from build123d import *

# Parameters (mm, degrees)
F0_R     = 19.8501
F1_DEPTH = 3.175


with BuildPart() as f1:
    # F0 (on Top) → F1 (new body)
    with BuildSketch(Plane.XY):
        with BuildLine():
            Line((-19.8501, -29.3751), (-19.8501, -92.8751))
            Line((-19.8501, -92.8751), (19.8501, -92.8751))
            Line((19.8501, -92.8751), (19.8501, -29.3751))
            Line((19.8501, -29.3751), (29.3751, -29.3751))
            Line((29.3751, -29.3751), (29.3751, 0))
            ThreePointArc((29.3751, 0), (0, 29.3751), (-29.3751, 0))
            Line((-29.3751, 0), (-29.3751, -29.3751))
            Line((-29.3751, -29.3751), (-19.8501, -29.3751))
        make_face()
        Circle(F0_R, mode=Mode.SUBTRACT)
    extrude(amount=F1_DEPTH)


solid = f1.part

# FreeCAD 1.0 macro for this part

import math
import FreeCAD as App
import Part
import Sketcher
Q = App.Units.Quantity

doc = App.newDocument("Part")
body = doc.addObject("PartDesign::Body", "Body")

sketch1 = body.newObject("Sketcher::SketchObject", "Sketch")
sketch1.AttachmentSupport = (doc.getObject("XY_Plane"), [""])
sketch1.MapMode = "FlatFace"
sketch1.addGeometry(Part.LineSegment(App.Vector(-20, -29, 0), App.Vector(-20, -93, 0)), False)
sketch1.addGeometry(Part.LineSegment(App.Vector(-20, -93, 0), App.Vector(20, -93, 0)), False)
sketch1.addGeometry(Part.LineSegment(App.Vector(20, -93, 0), App.Vector(20, -29, 0)), False)
sketch1.addGeometry(Part.LineSegment(App.Vector(20, -29, 0), App.Vector(29, -29, 0)), False)
sketch1.addGeometry(Part.LineSegment(App.Vector(29, -29, 0), App.Vector(29, 0, 0)), False)
sketch1.addGeometry(Part.ArcOfCircle(Part.Circle(App.Vector(0, 0, 0), App.Vector(0, 0, 1), 29), math.radians(0), math.radians(180)), False)
sketch1.addGeometry(Part.LineSegment(App.Vector(-29, 0, 0), App.Vector(-29, -29, 0)), False)
sketch1.addGeometry(Part.LineSegment(App.Vector(-29, -29, 0), App.Vector(-20, -29, 0)), False)
sketch1.addGeometry(Part.Circle(App.Vector(0, 0, 0), App.Vector(0, 0, 1), 20), False)
sketch1.addConstraint(Sketcher.Constraint("Coincident", 0, 2, 1, 1))
sketch1.addConstraint(Sketcher.Constraint("Coincident", 1, 2, 2, 1))
sketch1.addConstraint(Sketcher.Constraint("Coincident", 2, 2, 3, 1))
sketch1.addConstraint(Sketcher.Constraint("Coincident", 3, 2, 4, 1))
sketch1.addConstraint(Sketcher.Constraint("Tangent", 4, 2, 5, 1))
sketch1.addConstraint(Sketcher.Constraint("Tangent", 5, 2, 6, 1))
sketch1.addConstraint(Sketcher.Constraint("Coincident", 6, 2, 7, 1))
sketch1.addConstraint(Sketcher.Constraint("Coincident", 7, 2, 0, 1))
sketch1.addConstraint(Sketcher.Constraint("Vertical", 0))
sketch1.addConstraint(Sketcher.Constraint("Horizontal", 1))
sketch1.addConstraint(Sketcher.Constraint("Vertical", 2))
sketch1.addConstraint(Sketcher.Constraint("Horizontal", 3))
sketch1.addConstraint(Sketcher.Constraint("Vertical", 4))
sketch1.addConstraint(Sketcher.Constraint("Vertical", 6))
sketch1.addConstraint(Sketcher.Constraint("Horizontal", 7))
sketch1.addConstraint(Sketcher.Constraint("Coincident", 5, 3, -1, 1))
sketch1.addConstraint(Sketcher.Constraint("Coincident", 8, 3, -1, 1))
sketch1.addConstraint(Sketcher.Constraint("Symmetric", 2, 2, 7, 2, -2))
sketch1.addConstraint(Sketcher.Constraint("Diameter", 8, Q("1.563 in")))
sketch1.addConstraint(Sketcher.Constraint("DistanceY", 0, 2, 0, 1, Q("2.5 in")))
sketch1.addConstraint(Sketcher.Constraint("Radius", 5, Q("1.1565 in")))
sketch1.addConstraint(Sketcher.Constraint("DistanceX", 1, 1, 1, 2, Q("1.563 in")))
sketch1.addConstraint(Sketcher.Constraint("DistanceY", 4, 1, 4, 2, Q("1.1565 in")))
pad1 = body.newObject("PartDesign::Pad", "Pad")
pad1.Profile = sketch1
pad1.Length = Q("0.125 in")

doc.recompute()
